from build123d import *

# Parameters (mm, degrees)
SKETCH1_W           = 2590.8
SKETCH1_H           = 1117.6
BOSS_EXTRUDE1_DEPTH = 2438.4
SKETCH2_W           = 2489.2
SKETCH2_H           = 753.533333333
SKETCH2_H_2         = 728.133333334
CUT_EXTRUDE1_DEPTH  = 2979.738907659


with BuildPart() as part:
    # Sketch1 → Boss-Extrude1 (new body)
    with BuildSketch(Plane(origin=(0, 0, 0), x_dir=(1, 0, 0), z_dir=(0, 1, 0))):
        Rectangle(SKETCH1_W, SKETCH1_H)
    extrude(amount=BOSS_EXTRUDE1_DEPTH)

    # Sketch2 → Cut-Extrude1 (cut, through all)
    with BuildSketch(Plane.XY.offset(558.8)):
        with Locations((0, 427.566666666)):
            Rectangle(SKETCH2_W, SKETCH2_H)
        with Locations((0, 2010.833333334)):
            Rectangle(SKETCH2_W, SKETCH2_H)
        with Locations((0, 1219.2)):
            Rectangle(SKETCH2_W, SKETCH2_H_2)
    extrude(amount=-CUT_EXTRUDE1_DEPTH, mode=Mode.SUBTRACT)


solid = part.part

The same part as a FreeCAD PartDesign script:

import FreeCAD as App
import Part
import Sketcher
Q = App.Units.Quantity


def add_polygon(sketch, points):
    """Adds a closed chain of lines whose ends are joined by coincident constraints."""
    first, n = sketch.GeometryCount, len(points)
    for a, b in zip(points, points[1:] + points[:1]):
        sketch.addGeometry(Part.LineSegment(App.Vector(*a, 0), App.Vector(*b, 0)), False)
    for i in range(n):
        sketch.addConstraint(Sketcher.Constraint("Coincident", first + i, 2, first + (i + 1) % n, 1))

doc = App.newDocument("Part")
body = doc.addObject("PartDesign::Body", "Body")

# Sketch on XZ plane
sketch1 = doc.addObject("Sketcher::SketchObject", "Sketch")
body.addObject(sketch1)
sketch1.AttachmentSupport = (doc.XZ_Plane, [""])
sketch1.MapMode = "FlatFace"
add_polygon(sketch1, [(-1295, -559), (-1295, 559), (1295, 559), (1295, -559)])  # lines 0-3
sketch1.addConstraint(Sketcher.Constraint("Vertical", 0))
sketch1.addConstraint(Sketcher.Constraint("Horizontal", 1))
sketch1.addConstraint(Sketcher.Constraint("Vertical", 2))
sketch1.addConstraint(Sketcher.Constraint("Horizontal", 3))
sketch1.addConstraint(Sketcher.Constraint("Symmetric", 0, 2, 2, 2, -1, 1))
sketch1.addConstraint(Sketcher.Constraint("DistanceX", 1, 1, 1, 2, Q("102 in")))
sketch1.addConstraint(Sketcher.Constraint("DistanceY", 0, 1, 0, 2, Q("44 in")))
pad1 = doc.addObject("PartDesign::Pad", "Pad")
body.addObject(pad1)
pad1.Profile = sketch1
pad1.Length = Q("96 in")
pad1.Reversed = True

# Sketch on XY plane
sketch2 = doc.addObject("Sketcher::SketchObject", "Sketch001")
body.addObject(sketch2)
sketch2.AttachmentSupport = (doc.XY_Plane, [""])
sketch2.MapMode = "FlatFace"
sketch2.AttachmentOffset = App.Placement(App.Vector(0, 0, 22 * 25.4), App.Rotation())
add_polygon(sketch2, [(-1245, 804), (-1245, 51), (1245, 51), (1245, 804)])  # lines 0-3
add_polygon(sketch2, [(-1245, 2388), (-1245, 1634), (1245, 1634), (1245, 2388)])  # lines 4-7
add_polygon(sketch2, [(-1245, 1583), (-1245, 855), (1245, 855), (1245, 1583)])  # lines 8-11
sketch2.addConstraint(Sketcher.Constraint("Vertical", 0))
sketch2.addConstraint(Sketcher.Constraint("Horizontal", 1))
sketch2.addConstraint(Sketcher.Constraint("Vertical", 2))
sketch2.addConstraint(Sketcher.Constraint("Horizontal", 3))
sketch2.addConstraint(Sketcher.Constraint("Vertical", 4))
sketch2.addConstraint(Sketcher.Constraint("Horizontal", 5))
sketch2.addConstraint(Sketcher.Constraint("Vertical", 6))
sketch2.addConstraint(Sketcher.Constraint("Horizontal", 7))
sketch2.addConstraint(Sketcher.Constraint("Vertical", 8))
sketch2.addConstraint(Sketcher.Constraint("Horizontal", 9))
sketch2.addConstraint(Sketcher.Constraint("Vertical", 10))
sketch2.addConstraint(Sketcher.Constraint("Horizontal", 11))
sketch2.addConstraint(Sketcher.Constraint("Vertical", 3, 2, 4, 2))
sketch2.addConstraint(Sketcher.Constraint("Vertical", 2, 2, 5, 2))
sketch2.addConstraint(Sketcher.Constraint("Vertical", 7, 2, 8, 2))
sketch2.addConstraint(Sketcher.Constraint("Vertical", 6, 2, 9, 2))
sketch2.addConstraint(Sketcher.Constraint("Equal", 2, 4))
sketch2.addConstraint(Sketcher.Constraint("DistanceX", 1, 1, 1, 2, Q("98 in")))
sketch2.addConstraint(Sketcher.Constraint("DistanceX", 0, 2, -1, 1, Q("49 in")))
sketch2.addConstraint(Sketcher.Constraint("DistanceY", -1, 1, 0, 2, Q("2 in")))
sketch2.addConstraint(Sketcher.Constraint("DistanceY", -1, 1, 6, 2, Q("94 in")))
sketch2.addConstraint(Sketcher.Constraint("DistanceY", 3, 2, 8, 2, Q("2 in")))
sketch2.addConstraint(Sketcher.Constraint("DistanceY", 10, 2, 5, 2, Q("2 in")))
sketch2.addConstraint(Sketcher.Constraint("DistanceY", 0, 2, 0, 1, 753.533333))
pocket1 = doc.addObject("PartDesign::Pocket", "Pocket")
body.addObject(pocket1)
pocket1.Profile = sketch2
pocket1.Type = "ThroughAll"

doc.recompute()
